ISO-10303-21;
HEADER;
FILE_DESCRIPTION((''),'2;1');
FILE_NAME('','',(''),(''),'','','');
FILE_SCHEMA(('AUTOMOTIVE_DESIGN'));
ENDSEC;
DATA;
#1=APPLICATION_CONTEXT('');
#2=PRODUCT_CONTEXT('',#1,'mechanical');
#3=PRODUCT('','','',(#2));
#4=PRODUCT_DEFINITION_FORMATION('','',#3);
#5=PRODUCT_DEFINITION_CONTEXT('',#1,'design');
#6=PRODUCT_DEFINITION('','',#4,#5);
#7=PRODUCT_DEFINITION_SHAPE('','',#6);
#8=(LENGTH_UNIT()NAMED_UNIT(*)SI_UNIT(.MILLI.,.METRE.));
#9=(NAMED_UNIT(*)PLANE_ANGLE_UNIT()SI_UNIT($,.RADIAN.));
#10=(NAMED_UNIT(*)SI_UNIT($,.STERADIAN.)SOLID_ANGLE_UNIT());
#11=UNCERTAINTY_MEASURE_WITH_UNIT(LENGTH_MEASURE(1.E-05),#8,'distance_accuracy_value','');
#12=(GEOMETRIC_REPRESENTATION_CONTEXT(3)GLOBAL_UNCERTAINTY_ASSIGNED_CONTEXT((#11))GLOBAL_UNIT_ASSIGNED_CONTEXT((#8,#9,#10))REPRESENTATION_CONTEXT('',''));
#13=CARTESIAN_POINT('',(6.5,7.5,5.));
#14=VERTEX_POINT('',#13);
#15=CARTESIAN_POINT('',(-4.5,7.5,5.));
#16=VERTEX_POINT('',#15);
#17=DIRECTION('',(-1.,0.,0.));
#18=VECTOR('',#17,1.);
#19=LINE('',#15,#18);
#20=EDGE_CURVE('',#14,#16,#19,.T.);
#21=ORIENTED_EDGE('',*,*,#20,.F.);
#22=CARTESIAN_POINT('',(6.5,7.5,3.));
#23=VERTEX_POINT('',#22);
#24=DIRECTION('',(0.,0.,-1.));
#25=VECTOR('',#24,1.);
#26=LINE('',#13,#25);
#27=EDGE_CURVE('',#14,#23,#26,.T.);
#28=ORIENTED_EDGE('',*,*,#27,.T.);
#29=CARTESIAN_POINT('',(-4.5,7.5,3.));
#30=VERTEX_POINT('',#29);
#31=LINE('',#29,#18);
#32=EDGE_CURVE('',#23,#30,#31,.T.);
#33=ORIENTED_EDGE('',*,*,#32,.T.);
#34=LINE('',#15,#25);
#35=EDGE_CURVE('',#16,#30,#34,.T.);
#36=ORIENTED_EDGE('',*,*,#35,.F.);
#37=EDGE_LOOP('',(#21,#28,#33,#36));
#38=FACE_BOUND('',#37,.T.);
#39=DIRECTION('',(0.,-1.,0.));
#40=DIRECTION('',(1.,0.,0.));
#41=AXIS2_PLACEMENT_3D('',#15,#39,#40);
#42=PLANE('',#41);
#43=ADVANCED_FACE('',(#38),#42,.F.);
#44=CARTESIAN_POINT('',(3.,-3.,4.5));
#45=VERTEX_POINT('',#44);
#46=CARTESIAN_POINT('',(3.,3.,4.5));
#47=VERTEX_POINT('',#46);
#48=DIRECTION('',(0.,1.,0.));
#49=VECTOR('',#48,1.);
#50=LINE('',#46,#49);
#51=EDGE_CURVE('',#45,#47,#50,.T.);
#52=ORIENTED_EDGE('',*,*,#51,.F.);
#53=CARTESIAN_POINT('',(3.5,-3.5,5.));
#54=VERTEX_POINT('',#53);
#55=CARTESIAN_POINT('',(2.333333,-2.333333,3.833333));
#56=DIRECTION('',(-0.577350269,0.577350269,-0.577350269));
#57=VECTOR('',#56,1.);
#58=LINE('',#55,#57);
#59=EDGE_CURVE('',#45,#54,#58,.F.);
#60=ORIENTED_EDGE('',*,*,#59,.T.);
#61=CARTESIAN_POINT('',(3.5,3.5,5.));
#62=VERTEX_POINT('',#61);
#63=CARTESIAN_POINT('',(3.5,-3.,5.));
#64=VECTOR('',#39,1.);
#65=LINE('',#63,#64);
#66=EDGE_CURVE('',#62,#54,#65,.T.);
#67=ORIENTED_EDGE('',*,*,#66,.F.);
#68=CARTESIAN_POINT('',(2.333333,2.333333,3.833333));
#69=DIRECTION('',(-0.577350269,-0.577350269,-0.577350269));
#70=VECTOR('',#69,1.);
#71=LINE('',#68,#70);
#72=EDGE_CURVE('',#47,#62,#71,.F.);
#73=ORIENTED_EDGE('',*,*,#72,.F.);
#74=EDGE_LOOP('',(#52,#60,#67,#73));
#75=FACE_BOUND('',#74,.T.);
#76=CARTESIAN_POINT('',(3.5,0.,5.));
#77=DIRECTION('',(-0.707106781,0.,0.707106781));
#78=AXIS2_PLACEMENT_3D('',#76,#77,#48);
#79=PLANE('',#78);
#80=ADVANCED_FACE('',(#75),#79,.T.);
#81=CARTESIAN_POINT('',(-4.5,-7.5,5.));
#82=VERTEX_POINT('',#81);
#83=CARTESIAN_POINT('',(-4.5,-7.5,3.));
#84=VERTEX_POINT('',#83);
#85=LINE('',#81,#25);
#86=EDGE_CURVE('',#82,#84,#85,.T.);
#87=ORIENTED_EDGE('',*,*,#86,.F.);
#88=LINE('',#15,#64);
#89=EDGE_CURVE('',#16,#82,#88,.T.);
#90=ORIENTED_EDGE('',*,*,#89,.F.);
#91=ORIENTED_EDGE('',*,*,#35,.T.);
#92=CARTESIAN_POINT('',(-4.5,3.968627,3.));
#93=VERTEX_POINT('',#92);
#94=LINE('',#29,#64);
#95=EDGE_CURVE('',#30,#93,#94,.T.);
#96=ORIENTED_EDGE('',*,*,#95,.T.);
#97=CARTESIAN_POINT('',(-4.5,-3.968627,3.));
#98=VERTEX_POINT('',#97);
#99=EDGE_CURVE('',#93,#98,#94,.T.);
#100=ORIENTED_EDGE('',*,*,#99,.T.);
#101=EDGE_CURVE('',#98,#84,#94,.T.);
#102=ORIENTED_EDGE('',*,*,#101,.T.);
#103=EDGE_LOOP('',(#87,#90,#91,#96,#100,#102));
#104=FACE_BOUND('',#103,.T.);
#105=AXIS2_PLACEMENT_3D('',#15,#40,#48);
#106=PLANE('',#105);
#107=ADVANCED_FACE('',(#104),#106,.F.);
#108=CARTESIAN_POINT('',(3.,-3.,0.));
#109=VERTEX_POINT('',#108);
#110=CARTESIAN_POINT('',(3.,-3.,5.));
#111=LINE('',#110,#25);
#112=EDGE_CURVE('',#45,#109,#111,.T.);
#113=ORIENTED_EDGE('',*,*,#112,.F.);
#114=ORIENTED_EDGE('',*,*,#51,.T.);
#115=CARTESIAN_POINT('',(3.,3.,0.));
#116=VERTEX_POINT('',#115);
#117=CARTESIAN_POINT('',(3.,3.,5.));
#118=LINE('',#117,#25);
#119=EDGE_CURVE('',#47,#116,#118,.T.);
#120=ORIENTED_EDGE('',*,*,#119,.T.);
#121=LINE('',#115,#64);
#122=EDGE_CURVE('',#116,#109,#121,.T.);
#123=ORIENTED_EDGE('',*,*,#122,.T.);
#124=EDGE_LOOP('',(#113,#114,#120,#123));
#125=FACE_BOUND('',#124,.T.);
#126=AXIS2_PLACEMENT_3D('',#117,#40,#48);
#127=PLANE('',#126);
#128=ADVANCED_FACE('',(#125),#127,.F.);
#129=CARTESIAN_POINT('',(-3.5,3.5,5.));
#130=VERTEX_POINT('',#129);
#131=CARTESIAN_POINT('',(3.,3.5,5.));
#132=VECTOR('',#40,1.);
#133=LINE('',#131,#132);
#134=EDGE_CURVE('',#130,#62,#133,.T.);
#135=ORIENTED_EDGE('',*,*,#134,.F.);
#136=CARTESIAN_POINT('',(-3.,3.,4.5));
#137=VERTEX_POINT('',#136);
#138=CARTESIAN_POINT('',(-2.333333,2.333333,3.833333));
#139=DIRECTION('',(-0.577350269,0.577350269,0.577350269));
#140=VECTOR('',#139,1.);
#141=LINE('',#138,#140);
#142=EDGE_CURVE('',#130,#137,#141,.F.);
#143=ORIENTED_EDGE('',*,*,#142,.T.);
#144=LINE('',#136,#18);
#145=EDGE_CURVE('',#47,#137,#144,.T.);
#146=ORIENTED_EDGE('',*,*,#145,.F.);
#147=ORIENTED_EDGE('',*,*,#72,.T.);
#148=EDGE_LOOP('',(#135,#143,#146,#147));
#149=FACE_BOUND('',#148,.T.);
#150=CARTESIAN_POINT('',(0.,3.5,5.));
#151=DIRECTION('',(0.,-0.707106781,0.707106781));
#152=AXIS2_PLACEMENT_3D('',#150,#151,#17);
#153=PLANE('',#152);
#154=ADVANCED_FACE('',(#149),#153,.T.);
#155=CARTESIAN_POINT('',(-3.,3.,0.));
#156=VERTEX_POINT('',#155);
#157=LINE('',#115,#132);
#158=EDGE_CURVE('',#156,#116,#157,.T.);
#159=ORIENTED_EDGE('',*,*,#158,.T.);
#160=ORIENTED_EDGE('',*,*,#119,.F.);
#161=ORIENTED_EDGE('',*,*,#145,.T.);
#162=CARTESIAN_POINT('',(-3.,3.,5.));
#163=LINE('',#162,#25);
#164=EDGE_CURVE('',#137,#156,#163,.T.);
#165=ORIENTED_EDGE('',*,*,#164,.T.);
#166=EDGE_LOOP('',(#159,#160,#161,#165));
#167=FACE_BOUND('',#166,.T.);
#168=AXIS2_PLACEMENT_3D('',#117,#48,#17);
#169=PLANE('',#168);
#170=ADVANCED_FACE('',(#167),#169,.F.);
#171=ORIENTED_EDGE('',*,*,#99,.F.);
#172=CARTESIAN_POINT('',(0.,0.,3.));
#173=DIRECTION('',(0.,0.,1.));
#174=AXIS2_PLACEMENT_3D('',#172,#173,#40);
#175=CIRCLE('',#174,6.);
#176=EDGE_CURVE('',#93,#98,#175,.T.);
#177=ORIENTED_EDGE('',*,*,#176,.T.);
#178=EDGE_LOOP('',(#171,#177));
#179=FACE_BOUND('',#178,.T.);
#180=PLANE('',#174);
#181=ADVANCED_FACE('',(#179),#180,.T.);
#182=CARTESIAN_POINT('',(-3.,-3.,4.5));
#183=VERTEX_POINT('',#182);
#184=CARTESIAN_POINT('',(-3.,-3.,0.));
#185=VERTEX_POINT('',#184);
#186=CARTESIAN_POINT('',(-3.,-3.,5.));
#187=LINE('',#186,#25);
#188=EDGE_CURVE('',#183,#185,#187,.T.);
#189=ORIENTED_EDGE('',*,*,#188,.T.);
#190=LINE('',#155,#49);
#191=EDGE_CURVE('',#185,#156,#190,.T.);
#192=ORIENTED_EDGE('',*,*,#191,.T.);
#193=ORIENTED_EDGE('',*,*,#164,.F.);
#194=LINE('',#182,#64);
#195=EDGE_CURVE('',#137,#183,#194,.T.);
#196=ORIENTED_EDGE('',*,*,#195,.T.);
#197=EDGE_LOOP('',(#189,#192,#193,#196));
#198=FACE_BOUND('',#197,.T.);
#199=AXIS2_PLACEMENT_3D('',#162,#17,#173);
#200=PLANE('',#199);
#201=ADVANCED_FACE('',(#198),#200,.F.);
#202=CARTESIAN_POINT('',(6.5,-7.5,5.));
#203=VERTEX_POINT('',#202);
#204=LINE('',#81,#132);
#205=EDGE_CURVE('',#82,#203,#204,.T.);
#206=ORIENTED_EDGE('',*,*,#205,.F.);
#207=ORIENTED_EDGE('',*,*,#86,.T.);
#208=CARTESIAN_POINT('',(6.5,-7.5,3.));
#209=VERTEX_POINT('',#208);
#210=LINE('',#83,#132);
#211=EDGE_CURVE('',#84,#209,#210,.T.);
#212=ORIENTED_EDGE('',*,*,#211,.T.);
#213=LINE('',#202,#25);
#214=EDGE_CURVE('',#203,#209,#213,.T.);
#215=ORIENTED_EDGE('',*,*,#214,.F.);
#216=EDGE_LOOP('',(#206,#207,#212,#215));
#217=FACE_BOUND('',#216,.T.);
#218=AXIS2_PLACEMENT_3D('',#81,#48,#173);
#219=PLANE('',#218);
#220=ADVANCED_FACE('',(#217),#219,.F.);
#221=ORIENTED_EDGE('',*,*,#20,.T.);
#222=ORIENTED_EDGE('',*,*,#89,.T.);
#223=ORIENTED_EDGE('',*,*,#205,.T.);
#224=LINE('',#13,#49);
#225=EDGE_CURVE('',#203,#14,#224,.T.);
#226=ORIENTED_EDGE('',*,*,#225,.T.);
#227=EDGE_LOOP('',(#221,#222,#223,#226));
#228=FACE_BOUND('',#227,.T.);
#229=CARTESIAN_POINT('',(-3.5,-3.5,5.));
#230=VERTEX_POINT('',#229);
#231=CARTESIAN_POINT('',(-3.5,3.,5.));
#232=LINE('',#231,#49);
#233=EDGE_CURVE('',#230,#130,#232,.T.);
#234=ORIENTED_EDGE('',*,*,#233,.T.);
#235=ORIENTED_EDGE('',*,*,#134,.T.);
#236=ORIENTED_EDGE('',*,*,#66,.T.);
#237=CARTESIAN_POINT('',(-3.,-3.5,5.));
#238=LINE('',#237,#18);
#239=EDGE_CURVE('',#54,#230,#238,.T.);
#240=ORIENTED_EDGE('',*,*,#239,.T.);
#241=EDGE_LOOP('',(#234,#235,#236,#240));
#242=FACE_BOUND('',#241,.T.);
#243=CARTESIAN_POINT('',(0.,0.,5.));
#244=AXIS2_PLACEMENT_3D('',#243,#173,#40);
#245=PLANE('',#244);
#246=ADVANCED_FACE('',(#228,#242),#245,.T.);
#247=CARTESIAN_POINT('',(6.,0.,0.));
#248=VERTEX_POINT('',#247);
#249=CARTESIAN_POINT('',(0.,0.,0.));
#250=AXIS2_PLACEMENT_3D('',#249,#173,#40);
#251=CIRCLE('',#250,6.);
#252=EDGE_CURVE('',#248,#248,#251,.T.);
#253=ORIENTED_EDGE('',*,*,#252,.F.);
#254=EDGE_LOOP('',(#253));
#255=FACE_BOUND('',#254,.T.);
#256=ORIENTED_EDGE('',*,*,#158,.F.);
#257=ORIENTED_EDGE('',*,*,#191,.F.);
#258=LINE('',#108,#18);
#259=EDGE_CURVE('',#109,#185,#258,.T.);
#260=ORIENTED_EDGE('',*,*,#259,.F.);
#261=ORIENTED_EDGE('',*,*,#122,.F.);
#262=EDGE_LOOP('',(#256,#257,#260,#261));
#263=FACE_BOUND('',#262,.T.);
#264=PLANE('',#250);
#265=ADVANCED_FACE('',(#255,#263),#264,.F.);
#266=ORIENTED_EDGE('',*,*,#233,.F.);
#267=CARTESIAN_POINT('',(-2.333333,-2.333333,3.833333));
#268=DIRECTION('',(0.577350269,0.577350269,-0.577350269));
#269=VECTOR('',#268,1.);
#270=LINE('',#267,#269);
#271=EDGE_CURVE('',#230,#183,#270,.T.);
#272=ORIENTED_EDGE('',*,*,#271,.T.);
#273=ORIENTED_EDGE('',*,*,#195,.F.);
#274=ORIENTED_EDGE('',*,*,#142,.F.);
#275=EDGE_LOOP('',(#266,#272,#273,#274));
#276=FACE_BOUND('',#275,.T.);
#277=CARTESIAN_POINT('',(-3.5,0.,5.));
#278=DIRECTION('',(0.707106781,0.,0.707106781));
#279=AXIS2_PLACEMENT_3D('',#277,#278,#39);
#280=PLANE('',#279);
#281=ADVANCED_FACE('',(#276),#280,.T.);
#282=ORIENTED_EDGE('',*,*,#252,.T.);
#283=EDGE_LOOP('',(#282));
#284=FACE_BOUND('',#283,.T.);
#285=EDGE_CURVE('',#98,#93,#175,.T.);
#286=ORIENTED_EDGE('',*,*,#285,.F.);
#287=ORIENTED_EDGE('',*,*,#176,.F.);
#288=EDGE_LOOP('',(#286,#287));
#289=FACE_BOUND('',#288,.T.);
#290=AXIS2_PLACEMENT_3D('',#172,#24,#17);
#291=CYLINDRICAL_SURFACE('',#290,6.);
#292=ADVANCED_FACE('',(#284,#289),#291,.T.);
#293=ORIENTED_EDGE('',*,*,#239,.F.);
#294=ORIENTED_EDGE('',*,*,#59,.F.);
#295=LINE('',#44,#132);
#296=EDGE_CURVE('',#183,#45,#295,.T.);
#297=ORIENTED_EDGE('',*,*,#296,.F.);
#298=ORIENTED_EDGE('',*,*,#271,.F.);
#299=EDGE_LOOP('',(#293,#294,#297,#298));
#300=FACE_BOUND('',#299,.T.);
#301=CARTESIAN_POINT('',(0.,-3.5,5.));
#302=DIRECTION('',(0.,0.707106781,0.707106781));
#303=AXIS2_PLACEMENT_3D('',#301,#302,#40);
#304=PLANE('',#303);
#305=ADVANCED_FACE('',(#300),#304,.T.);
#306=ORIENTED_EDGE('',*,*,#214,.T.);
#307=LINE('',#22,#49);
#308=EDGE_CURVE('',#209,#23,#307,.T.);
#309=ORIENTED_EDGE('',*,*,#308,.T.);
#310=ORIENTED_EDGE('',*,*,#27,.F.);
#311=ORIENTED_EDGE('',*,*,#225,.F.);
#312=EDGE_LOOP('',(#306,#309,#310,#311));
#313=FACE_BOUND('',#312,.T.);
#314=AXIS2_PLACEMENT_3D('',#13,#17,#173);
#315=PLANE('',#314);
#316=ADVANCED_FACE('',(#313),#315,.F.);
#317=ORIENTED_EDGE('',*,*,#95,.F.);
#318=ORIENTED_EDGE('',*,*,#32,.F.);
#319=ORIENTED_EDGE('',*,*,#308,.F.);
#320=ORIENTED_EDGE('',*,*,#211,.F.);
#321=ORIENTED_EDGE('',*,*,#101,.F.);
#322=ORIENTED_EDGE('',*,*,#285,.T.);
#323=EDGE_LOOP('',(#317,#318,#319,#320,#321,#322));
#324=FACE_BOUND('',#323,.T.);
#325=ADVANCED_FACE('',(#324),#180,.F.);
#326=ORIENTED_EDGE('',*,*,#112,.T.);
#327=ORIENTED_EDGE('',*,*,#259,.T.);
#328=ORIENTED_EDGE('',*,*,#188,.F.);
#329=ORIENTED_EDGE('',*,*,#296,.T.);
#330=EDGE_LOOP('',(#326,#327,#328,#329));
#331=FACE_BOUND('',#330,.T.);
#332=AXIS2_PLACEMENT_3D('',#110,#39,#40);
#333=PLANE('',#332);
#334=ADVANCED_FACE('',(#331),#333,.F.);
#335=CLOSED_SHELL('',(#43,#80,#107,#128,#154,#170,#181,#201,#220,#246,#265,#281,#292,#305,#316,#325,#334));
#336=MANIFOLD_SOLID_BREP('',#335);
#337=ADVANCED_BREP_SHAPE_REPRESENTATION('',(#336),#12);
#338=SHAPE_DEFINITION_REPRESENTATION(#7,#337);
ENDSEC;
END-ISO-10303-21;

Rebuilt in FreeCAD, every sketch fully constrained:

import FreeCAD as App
import Part
import Sketcher
Q = App.Units.Quantity


def edges_at(feature, points):
    """Names of the edges that pass closest to the given points."""
    edges = feature.Shape.Edges
    near = lambda p: min(range(len(edges)), key=lambda i: edges[i].distToShape(Part.Vertex(*p))[0])
    return sorted({f"Edge{near(p) + 1}" for p in points})


def add_polygon(sketch, points):
    """Adds a closed chain of lines whose ends are joined by coincident constraints."""
    first, n = sketch.GeometryCount, len(points)
    for a, b in zip(points, points[1:] + points[:1]):
        sketch.addGeometry(Part.LineSegment(App.Vector(*a, 0), App.Vector(*b, 0)), False)
    for i in range(n):
        sketch.addConstraint(Sketcher.Constraint("Coincident", first + i, 2, first + (i + 1) % n, 1))

doc = App.newDocument("Part")
params = doc.addObject("Spreadsheet::Sheet", "Params")
for row, (alias, value) in enumerate([
    ("sketch1_diameter", "12 mm"),
    ("pad1_length", "3 mm"),
    ("sketch2_width", "11 mm"),
    ("sketch2_height", "15 mm"),
    ("pad2_length", "2 mm"),
    ("sketch3_width", "6 mm"),
    ("chamfer_size", "0.5 mm"),
], start=1):
    params.set(f"A{row}", alias)
    params.set(f"B{row}", "=" + value)
    params.setAlias(f"B{row}", alias)

body = doc.addObject("PartDesign::Body", "Body")

# Sketch on XY plane
sketch1 = body.newObject("Sketcher::SketchObject", "Sketch")
sketch1.AttachmentSupport = (doc.getObject("XY_Plane"), [""])
sketch1.MapMode = "FlatFace"
sketch1.addGeometry(Part.Circle(App.Vector(0, 0, 0), App.Vector(0, 0, 1), 6), False)
sketch1.addConstraint([
    Sketcher.Constraint("Coincident", 0, 3, -1, 1),
    Sketcher.Constraint("Diameter", 0, Q("12 mm")),
])
sketch1.setExpression("Constraints[1]", "Params.sketch1_diameter")
pad1 = body.newObject("PartDesign::Pad", "Pad")
pad1.Profile = sketch1
pad1.setExpression("Length", "Params.pad1_length")

# Sketch on XY plane
sketch2 = body.newObject("Sketcher::SketchObject", "Sketch001")
sketch2.AttachmentSupport = (doc.getObject("XY_Plane"), [""])
sketch2.MapMode = "FlatFace"
sketch2.AttachmentOffset = App.Placement(App.Vector(0, 0, 3), App.Rotation())
add_polygon(sketch2, [(-4, 8), (-4, -8), (6, -8), (6, 8)])  # lines 0-3
sketch2.addConstraint([
    Sketcher.Constraint("Vertical", 0),
    Sketcher.Constraint("Horizontal", 1),
    Sketcher.Constraint("Vertical", 2),
    Sketcher.Constraint("Horizontal", 3),
    Sketcher.Constraint("DistanceX", 1, 1, 1, 2, Q("11 mm")),
    Sketcher.Constraint("DistanceY", 0, 2, 0, 1, Q("15 mm")),
    Sketcher.Constraint("DistanceX", 0, 2, -1, 1, Q("4.5 mm")),
    Sketcher.Constraint("DistanceY", 0, 2, -1, 1, Q("7.5 mm")),
])
sketch2.setExpression("Constraints[8]", "Params.sketch2_width")
sketch2.setExpression("Constraints[9]", "Params.sketch2_height")
pad2 = body.newObject("PartDesign::Pad", "Pad001")
pad2.Profile = sketch2
pad2.setExpression("Length", "Params.pad2_length")

# Sketch on XY plane
sketch3 = body.newObject("Sketcher::SketchObject", "Sketch002")
sketch3.AttachmentSupport = (doc.getObject("XY_Plane"), [""])
sketch3.MapMode = "FlatFace"
add_polygon(sketch3, [(3, 3), (3, -3), (-3, -3), (-3, 3)])  # lines 0-3
sketch3.addConstraint([
    Sketcher.Constraint("Vertical", 0),
    Sketcher.Constraint("Horizontal", 1),
    Sketcher.Constraint("Vertical", 2),
    Sketcher.Constraint("Horizontal", 3),
    Sketcher.Constraint("Symmetric", 0, 2, 2, 2, -1, 1),
    Sketcher.Constraint("Equal", 3, 0),
    Sketcher.Constraint("DistanceX", 1, 2, 1, 1, Q("6 mm")),
])
sketch3.setExpression("Constraints[10]", "Params.sketch3_width")
pocket1 = body.newObject("PartDesign::Pocket", "Pocket")
pocket1.Profile = sketch3
pocket1.Type = "ThroughAll"
pocket1.Reversed = True
doc.recompute()

chamfer = body.newObject("PartDesign::Chamfer", "Chamfer")
chamfer.Base = (pocket1, edges_at(pocket1, [
    (3, 0, 5),
    (0, 3, 5),
    (-3, 0, 5),
    (0, -3, 5),
]))
chamfer.setExpression("Size", "Params.chamfer_size")

doc.recompute()
